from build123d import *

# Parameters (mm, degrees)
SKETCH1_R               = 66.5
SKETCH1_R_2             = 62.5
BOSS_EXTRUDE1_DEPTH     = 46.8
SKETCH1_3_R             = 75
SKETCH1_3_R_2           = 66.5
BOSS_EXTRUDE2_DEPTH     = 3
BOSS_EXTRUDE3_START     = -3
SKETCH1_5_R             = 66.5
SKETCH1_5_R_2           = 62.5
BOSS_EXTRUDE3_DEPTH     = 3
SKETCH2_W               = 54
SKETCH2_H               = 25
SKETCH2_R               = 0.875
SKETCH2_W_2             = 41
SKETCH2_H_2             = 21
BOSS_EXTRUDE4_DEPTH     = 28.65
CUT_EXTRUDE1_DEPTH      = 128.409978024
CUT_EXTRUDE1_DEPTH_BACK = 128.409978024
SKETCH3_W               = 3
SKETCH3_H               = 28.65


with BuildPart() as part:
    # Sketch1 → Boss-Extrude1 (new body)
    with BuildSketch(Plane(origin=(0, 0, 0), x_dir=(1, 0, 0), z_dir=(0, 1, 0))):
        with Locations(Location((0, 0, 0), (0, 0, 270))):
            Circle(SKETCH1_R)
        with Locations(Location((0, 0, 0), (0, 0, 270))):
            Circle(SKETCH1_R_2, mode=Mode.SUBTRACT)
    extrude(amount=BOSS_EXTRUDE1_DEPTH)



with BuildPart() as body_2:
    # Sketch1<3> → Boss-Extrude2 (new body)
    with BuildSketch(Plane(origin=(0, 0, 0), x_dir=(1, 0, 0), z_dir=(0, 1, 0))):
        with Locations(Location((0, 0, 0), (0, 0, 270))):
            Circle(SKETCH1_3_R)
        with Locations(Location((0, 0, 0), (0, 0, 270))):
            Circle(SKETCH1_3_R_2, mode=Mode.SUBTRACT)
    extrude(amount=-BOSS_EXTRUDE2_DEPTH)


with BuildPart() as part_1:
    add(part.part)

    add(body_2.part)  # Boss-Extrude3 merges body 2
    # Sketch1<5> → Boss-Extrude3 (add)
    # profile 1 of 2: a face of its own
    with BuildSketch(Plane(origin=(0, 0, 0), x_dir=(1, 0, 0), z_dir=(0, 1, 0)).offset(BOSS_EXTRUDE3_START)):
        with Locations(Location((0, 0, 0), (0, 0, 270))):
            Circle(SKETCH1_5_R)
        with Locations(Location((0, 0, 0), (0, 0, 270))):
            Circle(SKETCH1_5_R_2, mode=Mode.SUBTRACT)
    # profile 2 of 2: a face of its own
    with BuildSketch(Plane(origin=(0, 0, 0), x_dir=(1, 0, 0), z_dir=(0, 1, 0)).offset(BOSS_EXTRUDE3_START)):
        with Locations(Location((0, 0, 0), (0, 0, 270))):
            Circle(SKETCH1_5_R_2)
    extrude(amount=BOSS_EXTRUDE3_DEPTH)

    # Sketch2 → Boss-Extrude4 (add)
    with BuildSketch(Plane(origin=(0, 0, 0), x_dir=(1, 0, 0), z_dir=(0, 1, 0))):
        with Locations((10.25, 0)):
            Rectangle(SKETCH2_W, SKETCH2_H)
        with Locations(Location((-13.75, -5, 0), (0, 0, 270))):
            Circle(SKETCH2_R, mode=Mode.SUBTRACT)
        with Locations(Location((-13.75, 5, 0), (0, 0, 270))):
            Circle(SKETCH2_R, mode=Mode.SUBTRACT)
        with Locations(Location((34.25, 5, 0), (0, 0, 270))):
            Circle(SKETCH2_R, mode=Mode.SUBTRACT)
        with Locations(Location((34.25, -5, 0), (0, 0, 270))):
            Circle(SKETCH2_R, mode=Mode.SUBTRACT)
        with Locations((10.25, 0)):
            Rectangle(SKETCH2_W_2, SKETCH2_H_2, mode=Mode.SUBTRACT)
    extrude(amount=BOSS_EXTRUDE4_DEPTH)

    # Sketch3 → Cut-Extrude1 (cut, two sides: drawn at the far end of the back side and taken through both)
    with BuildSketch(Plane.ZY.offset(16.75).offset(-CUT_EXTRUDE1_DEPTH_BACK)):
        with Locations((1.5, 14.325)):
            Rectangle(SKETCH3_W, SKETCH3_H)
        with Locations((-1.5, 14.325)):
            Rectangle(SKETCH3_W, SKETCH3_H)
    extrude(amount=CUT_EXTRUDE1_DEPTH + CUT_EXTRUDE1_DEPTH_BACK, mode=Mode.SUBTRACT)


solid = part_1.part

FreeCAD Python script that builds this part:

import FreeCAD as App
import Part
import Sketcher
from FreeCAD import Vector

doc = App.newDocument("Part")
body = doc.addObject("PartDesign::Body", "Body")

# Sketch on XZ plane
sketch1 = body.newObject("Sketcher::SketchObject", "Sketch")
sketch1.AttachmentSupport = (doc.getObject("XZ_Plane"), [""])
sketch1.MapMode = "FlatFace"
sketch1.addGeometry(Part.Circle(Vector(0, 0, 0), Vector(0, 0, 1), 66), False)
sketch1.addGeometry(Part.Circle(Vector(0, 0, 0), Vector(0, 0, 1), 62), False)
sketch1.addConstraint(Sketcher.Constraint("Coincident", 0, 3, -1, 1))
sketch1.addConstraint(Sketcher.Constraint("Coincident", 1, 3, -1, 1))
sketch1.addConstraint(Sketcher.Constraint("Diameter", 0, 133.0))
sketch1.addConstraint(Sketcher.Constraint("Diameter", 1, 125.0))
pad1 = body.newObject("PartDesign::Pad", "Pad")
pad1.Profile = sketch1
pad1.Length = 46.8
pad1.Reversed = True
body2 = doc.addObject("PartDesign::Body", "Body001")

# Sketch on XZ plane
sketch2 = body2.newObject("Sketcher::SketchObject", "Sketch001")
sketch2.AttachmentSupport = (doc.getObject("XZ_Plane001"), [""])
sketch2.MapMode = "FlatFace"
sketch2.addGeometry(Part.Circle(Vector(0, 0, 0), Vector(0, 0, 1), 75), False)
sketch2.addGeometry(Part.Circle(Vector(0, 0, 0), Vector(0, 0, 1), 66), False)
sketch2.addConstraint(Sketcher.Constraint("Coincident", 0, 3, -1, 1))
sketch2.addConstraint(Sketcher.Constraint("Coincident", 1, 3, -1, 1))
sketch2.addConstraint(Sketcher.Constraint("Diameter", 0, 150.0))
sketch2.addConstraint(Sketcher.Constraint("Diameter", 1, 133.0))
pad2 = body2.newObject("PartDesign::Pad", "Pad001")
pad2.Profile = sketch2
pad2.Length = 3
body.AllowCompound = True
doc.recompute()

boolean = body.newObject("PartDesign::Boolean", "Boolean")
boolean.Type = "Fuse"
boolean.addObjects([body2])

# Sketch on XZ plane
sketch3 = body.newObject("Sketcher::SketchObject", "Sketch002")
sketch3.AttachmentSupport = (doc.getObject("XZ_Plane"), [""])
sketch3.MapMode = "FlatFace"
sketch3.AttachmentOffset = App.Placement(Vector(0, 0, 3), App.Rotation())
sketch3.addGeometry(Part.Circle(Vector(0, 0, 0), Vector(0, 0, 1), 66), False)
sketch3.addConstraint(Sketcher.Constraint("Coincident", 0, 3, -1, 1))
sketch3.addConstraint(Sketcher.Constraint("Diameter", 0, 133.0))
pad3 = body.newObject("PartDesign::Pad", "Pad002")
pad3.Profile = sketch3
pad3.Length = 3
pad3.Reversed = True

# Sketch on XZ plane
sketch4 = body.newObject("Sketcher::SketchObject", "Sketch003")
sketch4.AttachmentSupport = (doc.getObject("XZ_Plane"), [""])
sketch4.MapMode = "FlatFace"
sketch4.addGeometry(Part.LineSegment(Vector(-16.8, -12.5, 0), Vector(-16.8, 12.5, 0)), False)
sketch4.addGeometry(Part.LineSegment(Vector(-16.8, 12.5, 0), Vector(37.2, 12.5, 0)), False)
sketch4.addGeometry(Part.LineSegment(Vector(37.2, 12.5, 0), Vector(37.2, -12.5, 0)), False)
sketch4.addGeometry(Part.LineSegment(Vector(37.2, -12.5, 0), Vector(-16.8, -12.5, 0)), False)
sketch4.addGeometry(Part.Circle(Vector(-13.8, 5, 0), Vector(0, 0, 1), 0.9), False)
sketch4.addGeometry(Part.Circle(Vector(34.2, 5, 0), Vector(0, 0, 1), 0.9), False)
sketch4.addGeometry(Part.Circle(Vector(-13.8, -5, 0), Vector(0, 0, 1), 0.9), False)
sketch4.addGeometry(Part.LineSegment(Vector(30.8, 10.5, 0), Vector(-10.2, 10.5, 0)), False)
sketch4.addGeometry(Part.LineSegment(Vector(-10.2, 10.5, 0), Vector(-10.2, -10.5, 0)), False)
sketch4.addGeometry(Part.LineSegment(Vector(-10.2, -10.5, 0), Vector(30.8, -10.5, 0)), False)
sketch4.addGeometry(Part.LineSegment(Vector(30.8, -10.5, 0), Vector(30.8, 10.5, 0)), False)
sketch4.addGeometry(Part.Circle(Vector(34.2, -5, 0), Vector(0, 0, 1), 0.9), False)
sketch4.addConstraint(Sketcher.Constraint("Coincident", 0, 2, 1, 1))
sketch4.addConstraint(Sketcher.Constraint("Coincident", 1, 2, 2, 1))
sketch4.addConstraint(Sketcher.Constraint("Coincident", 2, 2, 3, 1))
sketch4.addConstraint(Sketcher.Constraint("Coincident", 3, 2, 0, 1))
sketch4.addConstraint(Sketcher.Constraint("Coincident", 7, 2, 8, 1))
sketch4.addConstraint(Sketcher.Constraint("Coincident", 8, 2, 9, 1))
sketch4.addConstraint(Sketcher.Constraint("Coincident", 9, 2, 10, 1))
sketch4.addConstraint(Sketcher.Constraint("Coincident", 10, 2, 7, 1))
sketch4.addConstraint(Sketcher.Constraint("Vertical", 0))
sketch4.addConstraint(Sketcher.Constraint("Horizontal", 1))
sketch4.addConstraint(Sketcher.Constraint("Vertical", 2))
sketch4.addConstraint(Sketcher.Constraint("Horizontal", 3))
sketch4.addConstraint(Sketcher.Constraint("Horizontal", 7))
sketch4.addConstraint(Sketcher.Constraint("Vertical", 8))
sketch4.addConstraint(Sketcher.Constraint("Horizontal", 9))
sketch4.addConstraint(Sketcher.Constraint("Vertical", 10))
sketch4.addConstraint(Sketcher.Constraint("Equal", 4, 5))
sketch4.addConstraint(Sketcher.Constraint("Equal", 5, 6))
sketch4.addConstraint(Sketcher.Constraint("Equal", 6, 11))
sketch4.addConstraint(Sketcher.Constraint("Symmetric", 4, 3, 6, 3, -1))
sketch4.addConstraint(Sketcher.Constraint("Symmetric", 5, 3, 11, 3, -1))
sketch4.addConstraint(Sketcher.Constraint("Horizontal", 4, 3, 5, 3))
sketch4.addConstraint(Sketcher.Constraint("Diameter", 4, 1.75))
sketch4.addConstraint(Sketcher.Constraint("DistanceX", 1, 1, 1, 2, 54.0))
sketch4.addConstraint(Sketcher.Constraint("DistanceX", 7, 2, 7, 1, 41.0))
sketch4.addConstraint(Sketcher.Constraint("DistanceY", 0, 1, 0, 2, 25.0))
sketch4.addConstraint(Sketcher.Constraint("DistanceY", 8, 2, 8, 1, 21.0))
sketch4.addConstraint(Sketcher.Constraint("DistanceY", -1, 1, 4, 3, 5.0))
sketch4.addConstraint(Sketcher.Constraint("DistanceX", 4, 3, 5, 3, 48.0))
sketch4.addConstraint(Sketcher.Constraint("DistanceX", 0, 2, 4, 3, 3.0))
sketch4.addConstraint(Sketcher.Constraint("DistanceY", 7, 2, 0, 2, 2.0))
sketch4.addConstraint(Sketcher.Constraint("DistanceY", -1, 1, 0, 2, 12.5))
sketch4.addConstraint(Sketcher.Constraint("DistanceX", 4, 3, 7, 2, 3.5))
sketch4.addConstraint(Sketcher.Constraint("DistanceX", 4, 3, -1, 1, 13.75))
pad4 = body.newObject("PartDesign::Pad", "Pad003")
pad4.Profile = sketch4
pad4.Length = 28.65
pad4.Reversed = True

# Sketch on YZ plane
sketch5 = body.newObject("Sketcher::SketchObject", "Sketch004")
sketch5.AttachmentSupport = (doc.getObject("YZ_Plane"), [""])
sketch5.MapMode = "FlatFace"
sketch5.AttachmentOffset = App.Placement(Vector(0, 0, -16.75), App.Rotation())
sketch5.addGeometry(Part.LineSegment(Vector(0, 3, 0), Vector(29, 3, 0)), False)
sketch5.addGeometry(Part.LineSegment(Vector(29, 3, 0), Vector(29, -3, 0)), False)
sketch5.addGeometry(Part.LineSegment(Vector(29, -3, 0), Vector(0, -3, 0)), False)
sketch5.addGeometry(Part.LineSegment(Vector(0, -3, 0), Vector(0, 3, 0)), False)
sketch5.addConstraint(Sketcher.Constraint("Coincident", 0, 2, 1, 1))
sketch5.addConstraint(Sketcher.Constraint("Coincident", 1, 2, 2, 1))
sketch5.addConstraint(Sketcher.Constraint("Coincident", 2, 2, 3, 1))
sketch5.addConstraint(Sketcher.Constraint("Coincident", 3, 2, 0, 1))
sketch5.addConstraint(Sketcher.Constraint("Horizontal", 0))
sketch5.addConstraint(Sketcher.Constraint("Vertical", 1))
sketch5.addConstraint(Sketcher.Constraint("Horizontal", 2))
sketch5.addConstraint(Sketcher.Constraint("Vertical", 3))
sketch5.addConstraint(Sketcher.Constraint("Symmetric", 2, 2, 3, 2, -1, 1))
sketch5.addConstraint(Sketcher.Constraint("DistanceY", 1, 2, 1, 1, 6.0))
sketch5.addConstraint(Sketcher.Constraint("DistanceX", 0, 1, 0, 2, 28.65))
pocket1 = body.newObject("PartDesign::Pocket", "Pocket")
pocket1.Profile = sketch5
pocket1.Type = "ThroughAll"
pocket1.Midplane = True

doc.recompute()
